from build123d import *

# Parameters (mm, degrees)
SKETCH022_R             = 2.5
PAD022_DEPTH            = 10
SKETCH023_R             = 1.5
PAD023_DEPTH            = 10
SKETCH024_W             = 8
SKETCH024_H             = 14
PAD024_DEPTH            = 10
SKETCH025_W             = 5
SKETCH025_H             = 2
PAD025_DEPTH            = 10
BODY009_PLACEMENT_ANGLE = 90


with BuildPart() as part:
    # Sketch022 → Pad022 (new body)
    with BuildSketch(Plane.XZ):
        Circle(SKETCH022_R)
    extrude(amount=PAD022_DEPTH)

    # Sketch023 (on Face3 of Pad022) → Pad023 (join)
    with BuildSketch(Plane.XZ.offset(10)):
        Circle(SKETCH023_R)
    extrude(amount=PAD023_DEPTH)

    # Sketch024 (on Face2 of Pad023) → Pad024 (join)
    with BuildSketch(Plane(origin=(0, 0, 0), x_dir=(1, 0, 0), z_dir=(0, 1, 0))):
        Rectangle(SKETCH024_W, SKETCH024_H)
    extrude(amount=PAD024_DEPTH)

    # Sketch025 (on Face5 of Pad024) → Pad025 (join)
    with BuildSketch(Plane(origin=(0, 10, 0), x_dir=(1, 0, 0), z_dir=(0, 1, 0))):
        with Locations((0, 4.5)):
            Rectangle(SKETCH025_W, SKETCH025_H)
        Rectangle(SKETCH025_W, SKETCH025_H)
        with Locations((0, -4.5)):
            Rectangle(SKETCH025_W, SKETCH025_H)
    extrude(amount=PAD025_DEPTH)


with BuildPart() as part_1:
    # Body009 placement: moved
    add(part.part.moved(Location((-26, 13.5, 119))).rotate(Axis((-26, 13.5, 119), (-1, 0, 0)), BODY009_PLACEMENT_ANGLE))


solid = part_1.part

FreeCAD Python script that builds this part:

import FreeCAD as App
import Part
import Sketcher

doc = App.newDocument("Part")
body = doc.addObject("PartDesign::Body", "Body")

# Sketch on XZ plane
sketch1 = body.newObject("Sketcher::SketchObject", "Sketch")
sketch1.AttachmentSupport = (doc.getObject("XZ_Plane"), [""])
sketch1.MapMode = "FlatFace"
sketch1.addGeometry(Part.Circle(App.Vector(0, 0, 0), App.Vector(0, 0, 1), 2.5), False)
sketch1.addConstraint([
    Sketcher.Constraint("Coincident", 0, 3, -1, 1),
    Sketcher.Constraint("Diameter", 0, 5.0),
])
pad1 = body.newObject("PartDesign::Pad", "Pad")
pad1.Profile = sketch1
pad1.Length = 10

# Sketch on XZ plane
sketch2 = body.newObject("Sketcher::SketchObject", "Sketch001")
sketch2.AttachmentSupport = (doc.getObject("XZ_Plane"), [""])
sketch2.MapMode = "FlatFace"
sketch2.AttachmentOffset = App.Placement(App.Vector(0, 0, 10), App.Rotation())
sketch2.addGeometry(Part.Circle(App.Vector(0, 0, 0), App.Vector(0, 0, 1), 1.5), False)
sketch2.addConstraint([
    Sketcher.Constraint("Coincident", 0, 3, -1, 1),
    Sketcher.Constraint("Diameter", 0, 3.0),
])
pad2 = body.newObject("PartDesign::Pad", "Pad001")
pad2.Profile = sketch2
pad2.Length = 10

# Sketch on XZ plane
sketch3 = body.newObject("Sketcher::SketchObject", "Sketch002")
sketch3.AttachmentSupport = (doc.getObject("XZ_Plane"), [""])
sketch3.MapMode = "FlatFace"
sketch3.addGeometry([
    Part.LineSegment(App.Vector(-4, -7, 0), App.Vector(-4, 7, 0)),
    Part.LineSegment(App.Vector(-4, 7, 0), App.Vector(4, 7, 0)),
    Part.LineSegment(App.Vector(4, 7, 0), App.Vector(4, -7, 0)),
    Part.LineSegment(App.Vector(4, -7, 0), App.Vector(-4, -7, 0)),
], False)
sketch3.addConstraint([
    Sketcher.Constraint("Coincident", 0, 2, 1, 1),
    Sketcher.Constraint("Coincident", 1, 2, 2, 1),
    Sketcher.Constraint("Coincident", 2, 2, 3, 1),
    Sketcher.Constraint("Coincident", 3, 2, 0, 1),
    Sketcher.Constraint("Vertical", 0),
    Sketcher.Constraint("Horizontal", 1),
    Sketcher.Constraint("Vertical", 2),
    Sketcher.Constraint("Horizontal", 3),
    Sketcher.Constraint("Symmetric", 0, 2, 2, 2, -1, 1),
    Sketcher.Constraint("DistanceX", 1, 1, 1, 2, 8.0),
    Sketcher.Constraint("DistanceY", 0, 1, 0, 2, 14.0),
])
pad3 = body.newObject("PartDesign::Pad", "Pad002")
pad3.Profile = sketch3
pad3.Length = 10
pad3.Reversed = True

# Sketch on XZ plane
sketch4 = body.newObject("Sketcher::SketchObject", "Sketch003")
sketch4.AttachmentSupport = (doc.getObject("XZ_Plane"), [""])
sketch4.MapMode = "FlatFace"
sketch4.AttachmentOffset = App.Placement(App.Vector(0, 0, -10), App.Rotation())
sketch4.addGeometry([
    Part.LineSegment(App.Vector(-2.5, -5.5, 0), App.Vector(-2.5, -3.5, 0)),  # 0
    Part.LineSegment(App.Vector(-2.5, -3.5, 0), App.Vector(2.5, -3.5, 0)),  # 1
    Part.LineSegment(App.Vector(2.5, -3.5, 0), App.Vector(2.5, -5.5, 0)),  # 2
    Part.LineSegment(App.Vector(2.5, -5.5, 0), App.Vector(-2.5, -5.5, 0)),  # 3
    Part.LineSegment(App.Vector(-2.5, -1, 0), App.Vector(-2.5, 1, 0)),  # 4
    Part.LineSegment(App.Vector(-2.5, 1, 0), App.Vector(2.5, 1, 0)),  # 5
    Part.LineSegment(App.Vector(2.5, 1, 0), App.Vector(2.5, -1, 0)),  # 6
    Part.LineSegment(App.Vector(2.5, -1, 0), App.Vector(-2.5, -1, 0)),  # 7
    Part.LineSegment(App.Vector(-2.5, 3.5, 0), App.Vector(-2.5, 5.5, 0)),  # 8
    Part.LineSegment(App.Vector(-2.5, 5.5, 0), App.Vector(2.5, 5.5, 0)),  # 9
    Part.LineSegment(App.Vector(2.5, 5.5, 0), App.Vector(2.5, 3.5, 0)),  # 10
    Part.LineSegment(App.Vector(2.5, 3.5, 0), App.Vector(-2.5, 3.5, 0)),  # 11
], False)
sketch4.addConstraint([
    Sketcher.Constraint("Coincident", 0, 2, 1, 1),
    Sketcher.Constraint("Coincident", 1, 2, 2, 1),
    Sketcher.Constraint("Coincident", 2, 2, 3, 1),
    Sketcher.Constraint("Coincident", 3, 2, 0, 1),
    Sketcher.Constraint("Coincident", 4, 2, 5, 1),
    Sketcher.Constraint("Coincident", 5, 2, 6, 1),
    Sketcher.Constraint("Coincident", 6, 2, 7, 1),
    Sketcher.Constraint("Coincident", 7, 2, 4, 1),
    Sketcher.Constraint("Coincident", 8, 2, 9, 1),
    Sketcher.Constraint("Coincident", 9, 2, 10, 1),
    Sketcher.Constraint("Coincident", 10, 2, 11, 1),
    Sketcher.Constraint("Coincident", 11, 2, 8, 1),
    Sketcher.Constraint("Vertical", 0),
    Sketcher.Constraint("Horizontal", 1),
    Sketcher.Constraint("Vertical", 2),
    Sketcher.Constraint("Horizontal", 3),
    Sketcher.Constraint("Vertical", 4),
    Sketcher.Constraint("Horizontal", 5),
    Sketcher.Constraint("Vertical", 6),
    Sketcher.Constraint("Horizontal", 7),
    Sketcher.Constraint("Vertical", 8),
    Sketcher.Constraint("Horizontal", 9),
    Sketcher.Constraint("Vertical", 10),
    Sketcher.Constraint("Horizontal", 11),
    Sketcher.Constraint("Symmetric", 4, 2, 6, 2, -1, 1),
    Sketcher.Constraint("Symmetric", 2, 2, 8, 2, -1, 1),
    Sketcher.Constraint("Symmetric", 0, 2, 10, 2, -1, 1),
    Sketcher.Constraint("Vertical", 3, 2, 4, 2),
    Sketcher.Constraint("Vertical", 2, 2, 5, 2),
    Sketcher.Constraint("Equal", 2, 4),
    Sketcher.Constraint("DistanceX", 1, 1, 1, 2, 5.0),
    Sketcher.Constraint("DistanceY", 0, 1, 0, 2, 2.0),
    Sketcher.Constraint("DistanceY", 0, 2, 8, 2, 9.0),
])
pad4 = body.newObject("PartDesign::Pad", "Pad003")
pad4.Profile = sketch4
pad4.Length = 10
pad4.Reversed = True
body2 = doc.addObject("PartDesign::Body", "Body001")
doc.recompute()

body.Placement = App.Placement(App.Vector(-26, 13.5, 119), App.Rotation(App.Vector(-1, 0, 0), 90))
boolean = body2.newObject("PartDesign::Boolean", "Boolean")
boolean.Type = "Fuse"
boolean.addObjects([body])

doc.recompute()
